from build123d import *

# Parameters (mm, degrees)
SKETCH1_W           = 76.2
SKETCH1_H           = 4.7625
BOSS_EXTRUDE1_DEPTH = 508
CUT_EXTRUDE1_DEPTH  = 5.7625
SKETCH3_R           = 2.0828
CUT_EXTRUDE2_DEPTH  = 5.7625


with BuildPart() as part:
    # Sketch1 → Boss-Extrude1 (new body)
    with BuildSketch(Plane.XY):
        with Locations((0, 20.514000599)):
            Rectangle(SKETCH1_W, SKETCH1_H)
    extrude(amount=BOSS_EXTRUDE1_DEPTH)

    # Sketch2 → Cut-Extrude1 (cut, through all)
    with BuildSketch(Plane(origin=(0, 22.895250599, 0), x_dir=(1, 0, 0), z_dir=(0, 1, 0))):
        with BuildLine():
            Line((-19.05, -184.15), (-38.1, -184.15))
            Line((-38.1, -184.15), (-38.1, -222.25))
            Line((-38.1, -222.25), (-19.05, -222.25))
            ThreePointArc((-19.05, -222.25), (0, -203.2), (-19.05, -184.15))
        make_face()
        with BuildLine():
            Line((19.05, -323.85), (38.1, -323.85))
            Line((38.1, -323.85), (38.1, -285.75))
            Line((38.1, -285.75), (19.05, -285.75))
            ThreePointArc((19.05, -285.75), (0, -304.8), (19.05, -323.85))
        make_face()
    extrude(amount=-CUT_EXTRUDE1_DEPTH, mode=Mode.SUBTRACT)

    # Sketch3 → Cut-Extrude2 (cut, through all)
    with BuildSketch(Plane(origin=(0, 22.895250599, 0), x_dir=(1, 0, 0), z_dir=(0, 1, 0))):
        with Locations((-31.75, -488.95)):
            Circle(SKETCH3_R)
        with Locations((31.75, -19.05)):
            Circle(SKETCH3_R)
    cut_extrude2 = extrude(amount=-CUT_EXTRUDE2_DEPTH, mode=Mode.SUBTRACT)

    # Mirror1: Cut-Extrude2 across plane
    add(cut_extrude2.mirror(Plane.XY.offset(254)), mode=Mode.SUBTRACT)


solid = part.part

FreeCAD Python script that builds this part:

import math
import FreeCAD as App
import Part
import Sketcher
from FreeCAD import Vector
Q = App.Units.Quantity

doc = App.newDocument("Part")
body = doc.addObject("PartDesign::Body", "Body")

# Sketch on XY plane
sketch1 = body.newObject("Sketcher::SketchObject", "Sketch")
sketch1.AttachmentSupport = (doc.getObject("XY_Plane"), [""])
sketch1.MapMode = "FlatFace"
sketch1.addGeometry([
    Part.LineSegment(Vector(-38.1, 22.9, 0), Vector(-38.1, 18.1, 0)),
    Part.LineSegment(Vector(-38.1, 18.1, 0), Vector(38.1, 18.1, 0)),
    Part.LineSegment(Vector(38.1, 18.1, 0), Vector(38.1, 22.9, 0)),
    Part.LineSegment(Vector(38.1, 22.9, 0), Vector(-38.1, 22.9, 0)),
], False)
sketch1.addConstraint([
    Sketcher.Constraint("Coincident", 0, 2, 1, 1),
    Sketcher.Constraint("Coincident", 1, 2, 2, 1),
    Sketcher.Constraint("Coincident", 2, 2, 3, 1),
    Sketcher.Constraint("Coincident", 3, 2, 0, 1),
    Sketcher.Constraint("Vertical", 0),
    Sketcher.Constraint("Horizontal", 1),
    Sketcher.Constraint("Vertical", 2),
    Sketcher.Constraint("Horizontal", 3),
    Sketcher.Constraint("DistanceX", 1, 1, 1, 2, Q("3 in")),
    Sketcher.Constraint("DistanceX", 0, 2, -1, 1, Q("1.5 in")),
    Sketcher.Constraint("DistanceY", 0, 2, 0, 1, Q("0.1875 in")),
    Sketcher.Constraint("DistanceY", -1, 1, 0, 2, 18.132751),
])
pad1 = body.newObject("PartDesign::Pad", "Pad")
pad1.Profile = sketch1
pad1.Length = Q("20 in")

# Sketch on XZ plane
sketch2 = body.newObject("Sketcher::SketchObject", "Sketch001")
sketch2.AttachmentSupport = (doc.getObject("XZ_Plane"), [""])
sketch2.MapMode = "FlatFace"
sketch2.AttachmentOffset = App.Placement(Vector(0, 0, -22.895251), App.Rotation())
sketch2.addGeometry([
    Part.LineSegment(Vector(-19, 184, 0), Vector(-38, 184, 0)),  # 0
    Part.LineSegment(Vector(-38, 184, 0), Vector(-38, 222, 0)),  # 1
    Part.LineSegment(Vector(-38, 222, 0), Vector(-19, 222, 0)),  # 2
    Part.ArcOfCircle(Part.Circle(Vector(-19, 203, 0), Vector(0, 0, 1), 19), math.radians(-90), math.radians(90)),  # 3
    Part.LineSegment(Vector(19, 324, 0), Vector(38, 324, 0)),  # 4
    Part.LineSegment(Vector(38, 324, 0), Vector(38, 286, 0)),  # 5
    Part.LineSegment(Vector(38, 286, 0), Vector(19, 286, 0)),  # 6
    Part.ArcOfCircle(Part.Circle(Vector(19, 305, 0), Vector(0, 0, 1), 19), math.radians(90), math.radians(270)),  # 7
], False)
sketch2.addConstraint([
    Sketcher.Constraint("Coincident", 0, 2, 1, 1),
    Sketcher.Constraint("Coincident", 1, 2, 2, 1),
    Sketcher.Constraint("Tangent", 2, 2, 3, 2),
    Sketcher.Constraint("Tangent", 3, 1, 0, 1),
    Sketcher.Constraint("Coincident", 4, 2, 5, 1),
    Sketcher.Constraint("Coincident", 5, 2, 6, 1),
    Sketcher.Constraint("Tangent", 6, 2, 7, 2),
    Sketcher.Constraint("Tangent", 7, 1, 4, 1),
    Sketcher.Constraint("Horizontal", 0),
    Sketcher.Constraint("Vertical", 1),
    Sketcher.Constraint("Horizontal", 2),
    Sketcher.Constraint("Horizontal", 4),
    Sketcher.Constraint("Vertical", 5),
    Sketcher.Constraint("Horizontal", 6),
    Sketcher.Constraint("Equal", 3, 7),
    Sketcher.Constraint("Equal", 2, 4),
    Sketcher.Constraint("Radius", 3, Q("0.75 in")),
    Sketcher.Constraint("DistanceY", -1, 1, 3, 3, Q("8 in")),
    Sketcher.Constraint("DistanceY", -1, 1, 7, 3, Q("12 in")),
    Sketcher.Constraint("DistanceX", 1, 2, 4, 2, Q("3 in")),
    Sketcher.Constraint("DistanceX", 0, 2, 0, 1, Q("0.75 in")),
    Sketcher.Constraint("DistanceX", 0, 2, -1, 1, Q("1.5 in")),
])
pocket1 = body.newObject("PartDesign::Pocket", "Pocket")
pocket1.Profile = sketch2
pocket1.Type = "ThroughAll"
pocket1.Reversed = True

# Sketch on XZ plane
sketch3 = body.newObject("Sketcher::SketchObject", "Sketch002")
sketch3.AttachmentSupport = (doc.getObject("XZ_Plane"), [""])
sketch3.MapMode = "FlatFace"
sketch3.AttachmentOffset = App.Placement(Vector(0, 0, -22.895251), App.Rotation())
sketch3.addGeometry([
    Part.Circle(Vector(-31.8, 488.9, 0), Vector(0, 0, 1), 2.1),
    Part.Circle(Vector(31.8, 19.1, 0), Vector(0, 0, 1), 2.1),
], False)
sketch3.addConstraint([
    Sketcher.Constraint("Equal", 0, 1),
    Sketcher.Constraint("Diameter", 0, Q("0.164 in")),
    Sketcher.Constraint("DistanceX", 0, 3, 1, 3, Q("2.5 in")),
    Sketcher.Constraint("DistanceY", 1, 3, 0, 3, Q("18.5 in")),
    Sketcher.Constraint("DistanceX", 0, 3, -1, 1, Q("1.25 in")),
    Sketcher.Constraint("DistanceY", -1, 1, 0, 3, Q("19.25 in")),
])
pocket2 = body.newObject("PartDesign::Pocket", "Pocket001")
pocket2.Profile = sketch3
pocket2.Type = "ThroughAll"
pocket2.Reversed = True
doc.recompute()

datumplane = body.newObject("PartDesign::Plane", "DatumPlane")
datumplane.AttachmentSupport = (doc.getObject("XY_Plane"), [""])
datumplane.MapMode = "FlatFace"
datumplane.AttachmentOffset = App.Placement(Vector(0, 0, 10 * 25.4), App.Rotation())
mirrored = body.newObject("PartDesign::Mirrored", "Mirrored")
mirrored.Originals = [pocket2]
mirrored.MirrorPlane = (datumplane, [""])
body.Tip = mirrored

doc.recompute()
